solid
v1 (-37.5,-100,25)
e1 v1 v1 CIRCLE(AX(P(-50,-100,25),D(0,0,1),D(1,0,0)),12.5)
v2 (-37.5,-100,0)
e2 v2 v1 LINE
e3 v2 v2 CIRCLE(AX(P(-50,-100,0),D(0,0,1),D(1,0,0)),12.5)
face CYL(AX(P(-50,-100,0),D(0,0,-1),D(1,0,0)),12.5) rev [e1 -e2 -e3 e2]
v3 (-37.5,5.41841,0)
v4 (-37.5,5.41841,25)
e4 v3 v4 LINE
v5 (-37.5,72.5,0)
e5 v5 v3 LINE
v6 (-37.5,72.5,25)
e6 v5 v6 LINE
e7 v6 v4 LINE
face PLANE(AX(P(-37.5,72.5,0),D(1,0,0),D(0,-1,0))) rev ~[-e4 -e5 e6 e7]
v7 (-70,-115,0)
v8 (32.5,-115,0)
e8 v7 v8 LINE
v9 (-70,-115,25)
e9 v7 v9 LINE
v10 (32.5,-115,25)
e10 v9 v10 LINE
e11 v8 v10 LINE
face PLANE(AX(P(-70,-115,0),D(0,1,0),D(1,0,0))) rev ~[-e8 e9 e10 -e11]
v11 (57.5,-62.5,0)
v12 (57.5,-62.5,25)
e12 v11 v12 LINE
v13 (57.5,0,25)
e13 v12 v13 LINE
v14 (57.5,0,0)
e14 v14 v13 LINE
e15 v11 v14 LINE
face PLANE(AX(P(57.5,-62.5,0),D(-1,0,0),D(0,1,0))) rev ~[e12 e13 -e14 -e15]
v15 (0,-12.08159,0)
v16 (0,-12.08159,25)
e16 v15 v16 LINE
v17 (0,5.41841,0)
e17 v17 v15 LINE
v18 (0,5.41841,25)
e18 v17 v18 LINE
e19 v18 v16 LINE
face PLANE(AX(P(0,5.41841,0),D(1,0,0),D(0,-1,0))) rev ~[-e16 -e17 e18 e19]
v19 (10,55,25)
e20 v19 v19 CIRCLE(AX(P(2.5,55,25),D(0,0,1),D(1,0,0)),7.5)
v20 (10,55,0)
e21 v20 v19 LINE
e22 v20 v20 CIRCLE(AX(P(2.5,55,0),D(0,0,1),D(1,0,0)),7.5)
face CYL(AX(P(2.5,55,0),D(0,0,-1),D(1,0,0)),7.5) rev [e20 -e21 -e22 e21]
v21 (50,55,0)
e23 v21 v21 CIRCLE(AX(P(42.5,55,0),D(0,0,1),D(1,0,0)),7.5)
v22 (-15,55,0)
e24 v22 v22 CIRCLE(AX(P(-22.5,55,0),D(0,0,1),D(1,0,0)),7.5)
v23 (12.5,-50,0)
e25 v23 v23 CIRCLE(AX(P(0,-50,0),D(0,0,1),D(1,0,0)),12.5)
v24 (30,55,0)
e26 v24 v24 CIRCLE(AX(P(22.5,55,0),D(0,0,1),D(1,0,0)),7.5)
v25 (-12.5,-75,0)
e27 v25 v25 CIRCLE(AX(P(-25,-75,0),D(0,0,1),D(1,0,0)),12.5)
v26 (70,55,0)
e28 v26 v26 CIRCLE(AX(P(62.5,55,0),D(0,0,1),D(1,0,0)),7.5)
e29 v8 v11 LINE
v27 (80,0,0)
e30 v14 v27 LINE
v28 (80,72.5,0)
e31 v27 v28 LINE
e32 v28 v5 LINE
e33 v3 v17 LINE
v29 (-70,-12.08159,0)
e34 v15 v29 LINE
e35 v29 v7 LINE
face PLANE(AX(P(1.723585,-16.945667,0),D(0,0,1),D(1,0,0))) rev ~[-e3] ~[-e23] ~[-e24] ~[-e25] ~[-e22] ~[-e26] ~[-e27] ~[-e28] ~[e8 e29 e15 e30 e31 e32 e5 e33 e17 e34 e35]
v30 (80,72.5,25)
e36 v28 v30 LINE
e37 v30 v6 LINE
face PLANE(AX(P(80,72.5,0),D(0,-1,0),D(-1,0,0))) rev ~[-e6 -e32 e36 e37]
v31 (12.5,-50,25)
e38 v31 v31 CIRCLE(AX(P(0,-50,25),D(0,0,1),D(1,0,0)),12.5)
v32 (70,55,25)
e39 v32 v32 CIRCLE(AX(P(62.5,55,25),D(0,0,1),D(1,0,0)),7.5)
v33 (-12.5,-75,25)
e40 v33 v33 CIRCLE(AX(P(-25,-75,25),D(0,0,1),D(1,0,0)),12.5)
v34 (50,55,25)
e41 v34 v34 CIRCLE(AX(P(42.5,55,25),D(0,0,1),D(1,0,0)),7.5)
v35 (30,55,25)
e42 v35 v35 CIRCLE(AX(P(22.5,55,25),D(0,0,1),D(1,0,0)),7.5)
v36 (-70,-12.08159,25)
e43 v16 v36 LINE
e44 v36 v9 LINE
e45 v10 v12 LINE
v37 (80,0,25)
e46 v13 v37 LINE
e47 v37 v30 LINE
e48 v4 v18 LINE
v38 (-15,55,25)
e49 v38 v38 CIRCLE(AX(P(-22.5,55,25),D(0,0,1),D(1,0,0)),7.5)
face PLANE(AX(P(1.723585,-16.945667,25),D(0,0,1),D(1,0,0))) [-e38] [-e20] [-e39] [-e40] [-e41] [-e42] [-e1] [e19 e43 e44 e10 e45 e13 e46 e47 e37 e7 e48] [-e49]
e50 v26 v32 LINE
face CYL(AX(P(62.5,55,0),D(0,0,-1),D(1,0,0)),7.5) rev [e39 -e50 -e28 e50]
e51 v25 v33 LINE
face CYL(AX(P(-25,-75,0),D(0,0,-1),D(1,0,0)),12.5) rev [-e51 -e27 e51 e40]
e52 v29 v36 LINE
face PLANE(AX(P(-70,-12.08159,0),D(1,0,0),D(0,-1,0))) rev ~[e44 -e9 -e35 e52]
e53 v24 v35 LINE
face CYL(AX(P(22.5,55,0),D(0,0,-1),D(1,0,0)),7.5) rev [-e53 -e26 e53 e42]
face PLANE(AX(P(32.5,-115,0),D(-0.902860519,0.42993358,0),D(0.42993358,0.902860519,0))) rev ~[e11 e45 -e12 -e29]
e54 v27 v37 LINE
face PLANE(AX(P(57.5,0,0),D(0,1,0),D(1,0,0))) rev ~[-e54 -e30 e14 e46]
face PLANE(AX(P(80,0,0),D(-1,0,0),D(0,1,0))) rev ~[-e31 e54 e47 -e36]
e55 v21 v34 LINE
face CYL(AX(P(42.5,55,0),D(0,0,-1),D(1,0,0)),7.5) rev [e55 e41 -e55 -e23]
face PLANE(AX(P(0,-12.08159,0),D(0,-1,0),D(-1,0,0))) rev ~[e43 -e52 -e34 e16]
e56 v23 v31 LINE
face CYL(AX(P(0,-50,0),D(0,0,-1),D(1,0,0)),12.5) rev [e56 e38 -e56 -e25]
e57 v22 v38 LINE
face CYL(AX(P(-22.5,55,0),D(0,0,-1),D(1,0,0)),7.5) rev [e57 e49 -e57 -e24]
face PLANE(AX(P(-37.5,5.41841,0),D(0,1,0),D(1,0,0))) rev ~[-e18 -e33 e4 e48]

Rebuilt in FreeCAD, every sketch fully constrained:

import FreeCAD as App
import Part
import Sketcher

V = App.Vector


def add_polygon(sketch, points):
    """Adds a closed chain of lines whose ends are joined by coincident constraints."""
    first, n = sketch.GeometryCount, len(points)
    for a, b in zip(points, points[1:] + points[:1]):
        sketch.addGeometry(Part.LineSegment(App.Vector(*a, 0), App.Vector(*b, 0)), False)
    for i in range(n):
        sketch.addConstraint(Sketcher.Constraint("Coincident", first + i, 2, first + (i + 1) % n, 1))

doc = App.newDocument("Part")
body = doc.addObject("PartDesign::Body", "Body")

# Sketch on XY plane
sketch1 = body.newObject("Sketcher::SketchObject", "Sketch")
sketch1.AttachmentSupport = (doc.getObject("XY_Plane"), [""])
sketch1.MapMode = "FlatFace"
add_polygon(sketch1, [(0, -12.08159), (-70, -12.08159), (-70, -115), (32.5, -115), (57.5, -62.5), (57.5, 0), (80, 0), (80, 72.5), (-37.5, 72.5), (-37.5, 5.41841), (0, 5.41841)])  # lines 0-10
sketch1.addGeometry(Part.Circle(V(-50, -100, 0), V(0, 0, 1), 12.5), False)  # 11
sketch1.addGeometry(Part.Circle(V(-25, -75, 0), V(0, 0, 1), 12.5), False)  # 12
sketch1.addGeometry(Part.Circle(V(0, -50, 0), V(0, 0, 1), 12.5), False)  # 13
sketch1.addGeometry(Part.Circle(V(-22.5, 55, 0), V(0, 0, 1), 7.5), False)  # 14
sketch1.addGeometry(Part.Circle(V(2.5, 55, 0), V(0, 0, 1), 7.5), False)  # 15
sketch1.addGeometry(Part.Circle(V(22.5, 55, 0), V(0, 0, 1), 7.5), False)  # 16
sketch1.addGeometry(Part.Circle(V(42.5, 55, 0), V(0, 0, 1), 7.5), False)  # 17
sketch1.addGeometry(Part.Circle(V(62.5, 55, 0), V(0, 0, 1), 7.5), False)  # 18
sketch1.addConstraint([
    Sketcher.Constraint("Horizontal", 0),
    Sketcher.Constraint("Vertical", 1),
    Sketcher.Constraint("Horizontal", 2),
    Sketcher.Constraint("Vertical", 4),
    Sketcher.Constraint("Horizontal", 5),
    Sketcher.Constraint("Vertical", 6),
    Sketcher.Constraint("Horizontal", 7),
    Sketcher.Constraint("Vertical", 8),
    Sketcher.Constraint("Horizontal", 9),
    Sketcher.Constraint("Vertical", 10),
    Sketcher.Constraint("Equal", 11, 12),
    Sketcher.Constraint("Equal", 12, 13),
    Sketcher.Constraint("Equal", 14, 15),
    Sketcher.Constraint("Equal", 15, 16),
    Sketcher.Constraint("Equal", 16, 17),
    Sketcher.Constraint("Equal", 17, 18),
    Sketcher.Constraint("Symmetric", 14, 3, 16, 3, -2),
    Sketcher.Constraint("PointOnObject", 13, 3, -2),
    Sketcher.Constraint("PointOnObject", 4, 2, -1),
    Sketcher.Constraint("PointOnObject", 9, 2, -2),
    Sketcher.Constraint("Horizontal", 14, 3, 15, 3),
    Sketcher.Constraint("Horizontal", 16, 3, 17, 3),
    Sketcher.Constraint("Horizontal", 17, 3, 18, 3),
    Sketcher.Constraint("Diameter", 11, 25.0),
    Sketcher.Constraint("Diameter", 14, 15.0),
    Sketcher.Constraint("DistanceX", 0, 2, 0, 1, 70.0),
    Sketcher.Constraint("DistanceX", 2, 1, 2, 2, 102.5),
    Sketcher.Constraint("DistanceX", 5, 1, 5, 2, 22.5),
    Sketcher.Constraint("DistanceX", 7, 2, 7, 1, 117.5),
    Sketcher.Constraint("DistanceX", 9, 1, 9, 2, 37.5),
    Sketcher.Constraint("DistanceY", 4, 1, 4, 2, 62.5),
    Sketcher.Constraint("DistanceY", 6, 1, 6, 2, 72.5),
    Sketcher.Constraint("DistanceY", 10, 2, 10, 1, 17.5),
    Sketcher.Constraint("DistanceX", 11, 3, -1, 1, 50.0),
    Sketcher.Constraint("DistanceY", 11, 3, -1, 1, 100.0),
    Sketcher.Constraint("DistanceX", 12, 3, -1, 1, 25.0),
    Sketcher.Constraint("DistanceY", 12, 3, -1, 1, 75.0),
    Sketcher.Constraint("DistanceY", 13, 3, -1, 1, 50.0),
    Sketcher.Constraint("DistanceY", -1, 1, 14, 3, 55.0),
    Sketcher.Constraint("DistanceY", 1, 2, -1, 1, 115.0),
    Sketcher.Constraint("DistanceX", 14, 3, 15, 3, 25.0),
    Sketcher.Constraint("DistanceX", 15, 3, 16, 3, 20.0),
    Sketcher.Constraint("DistanceX", 16, 3, 17, 3, 20.0),
    Sketcher.Constraint("DistanceX", 17, 3, 18, 3, 20.0),
    Sketcher.Constraint("DistanceY", 1, 2, 1, 1, 102.91841),
])
pad1 = body.newObject("PartDesign::Pad", "Pad")
pad1.Profile = sketch1
pad1.Length = 25

doc.recompute()
